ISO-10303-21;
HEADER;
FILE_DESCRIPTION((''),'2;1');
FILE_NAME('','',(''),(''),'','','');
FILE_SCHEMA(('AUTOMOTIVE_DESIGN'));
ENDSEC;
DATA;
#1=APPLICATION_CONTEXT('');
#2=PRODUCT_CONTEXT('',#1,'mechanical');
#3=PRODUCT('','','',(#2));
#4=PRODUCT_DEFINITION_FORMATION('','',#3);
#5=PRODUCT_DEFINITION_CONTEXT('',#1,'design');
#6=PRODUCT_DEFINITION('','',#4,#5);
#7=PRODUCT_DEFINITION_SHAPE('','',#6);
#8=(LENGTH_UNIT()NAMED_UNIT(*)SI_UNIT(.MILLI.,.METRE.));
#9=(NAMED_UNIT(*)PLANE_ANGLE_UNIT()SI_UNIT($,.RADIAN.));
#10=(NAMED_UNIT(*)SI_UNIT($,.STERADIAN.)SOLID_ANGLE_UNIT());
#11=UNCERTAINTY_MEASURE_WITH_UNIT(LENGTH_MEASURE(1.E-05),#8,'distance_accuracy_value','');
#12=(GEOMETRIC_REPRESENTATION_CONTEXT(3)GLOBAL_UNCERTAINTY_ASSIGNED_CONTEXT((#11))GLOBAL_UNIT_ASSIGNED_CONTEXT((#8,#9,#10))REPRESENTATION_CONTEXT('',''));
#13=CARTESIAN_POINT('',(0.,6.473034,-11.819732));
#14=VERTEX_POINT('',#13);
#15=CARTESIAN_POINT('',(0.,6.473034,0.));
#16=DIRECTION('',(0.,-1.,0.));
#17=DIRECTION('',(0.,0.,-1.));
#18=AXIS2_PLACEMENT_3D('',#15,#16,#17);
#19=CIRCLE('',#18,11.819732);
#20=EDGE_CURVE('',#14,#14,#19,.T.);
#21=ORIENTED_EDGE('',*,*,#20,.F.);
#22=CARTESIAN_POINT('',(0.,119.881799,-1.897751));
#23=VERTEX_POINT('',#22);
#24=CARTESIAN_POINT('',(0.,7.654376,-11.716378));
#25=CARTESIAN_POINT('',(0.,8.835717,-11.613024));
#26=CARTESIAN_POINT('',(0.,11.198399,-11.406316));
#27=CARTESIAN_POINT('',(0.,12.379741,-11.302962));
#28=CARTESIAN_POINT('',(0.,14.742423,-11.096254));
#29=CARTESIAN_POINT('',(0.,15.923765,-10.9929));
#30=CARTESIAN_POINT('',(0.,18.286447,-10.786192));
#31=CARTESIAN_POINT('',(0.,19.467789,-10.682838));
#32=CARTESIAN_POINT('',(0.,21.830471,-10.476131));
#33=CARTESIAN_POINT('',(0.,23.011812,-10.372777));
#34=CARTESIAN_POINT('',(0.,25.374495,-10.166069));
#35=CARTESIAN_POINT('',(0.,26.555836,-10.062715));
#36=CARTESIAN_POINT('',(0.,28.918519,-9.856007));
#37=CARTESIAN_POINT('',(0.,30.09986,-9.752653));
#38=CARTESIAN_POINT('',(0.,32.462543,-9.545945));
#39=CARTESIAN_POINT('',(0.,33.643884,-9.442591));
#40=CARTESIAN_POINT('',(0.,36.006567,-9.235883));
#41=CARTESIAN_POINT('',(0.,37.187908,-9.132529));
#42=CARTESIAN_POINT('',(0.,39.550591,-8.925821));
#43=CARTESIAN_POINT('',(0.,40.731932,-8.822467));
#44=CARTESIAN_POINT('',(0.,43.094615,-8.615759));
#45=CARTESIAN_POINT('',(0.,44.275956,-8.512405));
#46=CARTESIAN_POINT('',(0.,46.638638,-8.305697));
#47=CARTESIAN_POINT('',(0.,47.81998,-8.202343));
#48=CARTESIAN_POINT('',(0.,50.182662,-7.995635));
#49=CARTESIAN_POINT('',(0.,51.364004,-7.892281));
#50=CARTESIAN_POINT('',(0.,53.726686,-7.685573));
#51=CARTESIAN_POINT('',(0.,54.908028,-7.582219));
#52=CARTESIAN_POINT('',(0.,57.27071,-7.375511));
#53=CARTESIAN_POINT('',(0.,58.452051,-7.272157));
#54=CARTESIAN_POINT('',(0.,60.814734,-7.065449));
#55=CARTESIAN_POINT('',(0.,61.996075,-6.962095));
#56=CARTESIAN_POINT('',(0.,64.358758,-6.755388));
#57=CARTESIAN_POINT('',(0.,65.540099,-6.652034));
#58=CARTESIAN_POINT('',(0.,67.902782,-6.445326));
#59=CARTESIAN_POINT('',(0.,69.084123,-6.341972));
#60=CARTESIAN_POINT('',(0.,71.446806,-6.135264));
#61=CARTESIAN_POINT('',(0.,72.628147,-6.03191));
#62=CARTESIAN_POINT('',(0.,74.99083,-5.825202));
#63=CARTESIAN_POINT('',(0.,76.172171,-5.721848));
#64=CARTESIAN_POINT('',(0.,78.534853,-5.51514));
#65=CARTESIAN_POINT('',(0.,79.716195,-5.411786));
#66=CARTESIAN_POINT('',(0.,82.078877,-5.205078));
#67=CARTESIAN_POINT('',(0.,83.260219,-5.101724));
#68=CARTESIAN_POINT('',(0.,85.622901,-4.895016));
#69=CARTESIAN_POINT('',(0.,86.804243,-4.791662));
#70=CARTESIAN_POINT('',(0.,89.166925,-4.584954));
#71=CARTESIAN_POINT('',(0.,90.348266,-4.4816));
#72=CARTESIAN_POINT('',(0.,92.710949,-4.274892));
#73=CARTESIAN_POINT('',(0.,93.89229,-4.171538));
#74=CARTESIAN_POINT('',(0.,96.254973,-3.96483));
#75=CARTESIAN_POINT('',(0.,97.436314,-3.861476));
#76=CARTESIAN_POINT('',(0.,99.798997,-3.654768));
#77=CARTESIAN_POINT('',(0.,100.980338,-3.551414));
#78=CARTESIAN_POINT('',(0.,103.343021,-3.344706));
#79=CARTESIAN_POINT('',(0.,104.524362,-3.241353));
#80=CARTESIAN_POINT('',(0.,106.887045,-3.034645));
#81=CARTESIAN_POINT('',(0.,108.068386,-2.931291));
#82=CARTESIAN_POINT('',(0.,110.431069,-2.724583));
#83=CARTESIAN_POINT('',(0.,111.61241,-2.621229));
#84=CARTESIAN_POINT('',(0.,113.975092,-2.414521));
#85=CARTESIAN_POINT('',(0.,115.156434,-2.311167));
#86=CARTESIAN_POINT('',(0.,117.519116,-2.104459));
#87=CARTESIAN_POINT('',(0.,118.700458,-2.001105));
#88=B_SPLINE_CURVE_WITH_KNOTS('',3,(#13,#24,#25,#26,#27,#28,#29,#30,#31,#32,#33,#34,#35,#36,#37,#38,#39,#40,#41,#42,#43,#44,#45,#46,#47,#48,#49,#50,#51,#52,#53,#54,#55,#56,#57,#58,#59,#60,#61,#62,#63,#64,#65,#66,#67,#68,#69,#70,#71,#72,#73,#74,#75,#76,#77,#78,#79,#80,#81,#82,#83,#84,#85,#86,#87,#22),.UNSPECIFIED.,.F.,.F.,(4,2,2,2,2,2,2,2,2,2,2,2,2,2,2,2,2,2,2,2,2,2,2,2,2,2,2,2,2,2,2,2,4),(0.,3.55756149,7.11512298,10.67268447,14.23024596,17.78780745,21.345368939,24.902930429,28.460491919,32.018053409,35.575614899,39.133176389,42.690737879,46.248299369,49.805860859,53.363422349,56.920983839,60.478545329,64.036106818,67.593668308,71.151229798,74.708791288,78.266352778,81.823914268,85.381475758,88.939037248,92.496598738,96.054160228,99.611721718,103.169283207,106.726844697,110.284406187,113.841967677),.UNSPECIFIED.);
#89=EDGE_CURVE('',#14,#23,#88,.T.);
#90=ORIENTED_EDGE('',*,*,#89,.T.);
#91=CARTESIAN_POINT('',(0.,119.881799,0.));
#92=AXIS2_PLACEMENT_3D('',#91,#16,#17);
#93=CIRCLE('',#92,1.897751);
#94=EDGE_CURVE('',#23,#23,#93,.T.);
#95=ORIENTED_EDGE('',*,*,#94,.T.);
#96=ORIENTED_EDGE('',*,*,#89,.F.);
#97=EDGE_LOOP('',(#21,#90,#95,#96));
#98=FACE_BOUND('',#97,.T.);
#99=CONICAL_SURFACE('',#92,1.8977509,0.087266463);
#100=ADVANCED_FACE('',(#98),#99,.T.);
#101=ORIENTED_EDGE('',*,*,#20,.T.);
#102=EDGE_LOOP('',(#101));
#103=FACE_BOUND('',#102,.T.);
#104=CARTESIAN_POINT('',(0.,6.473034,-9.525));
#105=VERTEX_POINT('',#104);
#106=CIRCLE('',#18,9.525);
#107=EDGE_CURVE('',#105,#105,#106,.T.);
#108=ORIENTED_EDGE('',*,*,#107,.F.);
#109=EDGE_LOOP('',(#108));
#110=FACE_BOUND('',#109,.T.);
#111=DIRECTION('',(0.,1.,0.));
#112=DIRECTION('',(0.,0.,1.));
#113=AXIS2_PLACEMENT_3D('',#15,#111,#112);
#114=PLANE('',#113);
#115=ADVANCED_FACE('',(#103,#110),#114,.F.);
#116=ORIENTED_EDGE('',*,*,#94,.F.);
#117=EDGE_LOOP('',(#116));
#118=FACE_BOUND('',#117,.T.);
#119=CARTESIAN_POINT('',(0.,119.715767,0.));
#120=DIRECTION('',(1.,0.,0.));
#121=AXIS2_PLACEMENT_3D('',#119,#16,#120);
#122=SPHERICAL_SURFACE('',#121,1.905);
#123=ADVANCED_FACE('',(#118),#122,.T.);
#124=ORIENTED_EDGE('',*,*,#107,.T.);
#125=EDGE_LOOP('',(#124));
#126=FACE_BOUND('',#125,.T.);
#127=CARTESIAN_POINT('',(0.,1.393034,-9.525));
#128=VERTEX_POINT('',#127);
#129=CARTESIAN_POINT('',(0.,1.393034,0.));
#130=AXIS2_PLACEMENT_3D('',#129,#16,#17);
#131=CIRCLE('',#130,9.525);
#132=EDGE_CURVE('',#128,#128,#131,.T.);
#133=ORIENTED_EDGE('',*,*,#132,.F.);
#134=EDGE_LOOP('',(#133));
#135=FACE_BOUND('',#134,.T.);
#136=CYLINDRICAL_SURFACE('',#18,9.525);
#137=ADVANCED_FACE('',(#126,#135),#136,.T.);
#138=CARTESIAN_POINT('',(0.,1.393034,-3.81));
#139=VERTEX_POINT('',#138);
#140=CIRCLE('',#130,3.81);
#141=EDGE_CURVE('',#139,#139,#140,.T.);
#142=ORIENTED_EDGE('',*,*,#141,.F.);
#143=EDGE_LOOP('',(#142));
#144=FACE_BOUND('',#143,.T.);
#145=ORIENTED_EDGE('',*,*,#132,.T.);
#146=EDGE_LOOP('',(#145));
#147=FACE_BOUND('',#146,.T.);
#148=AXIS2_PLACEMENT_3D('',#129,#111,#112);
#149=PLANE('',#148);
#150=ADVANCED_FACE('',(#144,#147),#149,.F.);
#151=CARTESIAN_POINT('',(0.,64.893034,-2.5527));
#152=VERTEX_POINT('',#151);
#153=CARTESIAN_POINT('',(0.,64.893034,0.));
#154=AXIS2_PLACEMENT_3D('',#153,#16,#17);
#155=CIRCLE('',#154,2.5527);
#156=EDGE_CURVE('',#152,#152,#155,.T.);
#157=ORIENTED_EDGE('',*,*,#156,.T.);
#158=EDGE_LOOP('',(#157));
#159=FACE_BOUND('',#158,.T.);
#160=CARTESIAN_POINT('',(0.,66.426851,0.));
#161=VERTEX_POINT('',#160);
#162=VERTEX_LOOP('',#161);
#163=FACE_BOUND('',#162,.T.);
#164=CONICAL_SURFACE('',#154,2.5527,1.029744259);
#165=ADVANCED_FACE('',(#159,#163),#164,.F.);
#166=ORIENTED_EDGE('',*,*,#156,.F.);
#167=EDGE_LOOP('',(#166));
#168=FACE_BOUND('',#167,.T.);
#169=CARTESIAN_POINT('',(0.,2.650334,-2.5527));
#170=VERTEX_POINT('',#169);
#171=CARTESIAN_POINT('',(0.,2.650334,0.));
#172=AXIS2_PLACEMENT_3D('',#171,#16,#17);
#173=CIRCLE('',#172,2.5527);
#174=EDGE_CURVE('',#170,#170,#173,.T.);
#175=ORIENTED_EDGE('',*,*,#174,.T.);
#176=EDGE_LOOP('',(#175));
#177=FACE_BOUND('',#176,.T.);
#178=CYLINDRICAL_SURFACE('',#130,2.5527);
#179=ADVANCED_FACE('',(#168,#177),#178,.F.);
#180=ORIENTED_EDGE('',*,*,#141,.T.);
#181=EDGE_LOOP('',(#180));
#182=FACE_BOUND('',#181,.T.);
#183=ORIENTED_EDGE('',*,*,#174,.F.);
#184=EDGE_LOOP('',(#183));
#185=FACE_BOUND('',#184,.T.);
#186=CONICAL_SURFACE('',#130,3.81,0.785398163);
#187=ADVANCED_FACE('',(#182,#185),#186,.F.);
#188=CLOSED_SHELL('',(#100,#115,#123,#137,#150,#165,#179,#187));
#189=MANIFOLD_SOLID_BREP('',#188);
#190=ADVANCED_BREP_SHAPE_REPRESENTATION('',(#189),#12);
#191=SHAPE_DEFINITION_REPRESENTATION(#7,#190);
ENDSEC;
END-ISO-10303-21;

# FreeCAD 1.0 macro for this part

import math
import FreeCAD as App
import Part
import Sketcher
Q = App.Units.Quantity

doc = App.newDocument("Part")
body = doc.addObject("PartDesign::Body", "Body")

sketch1 = body.newObject("Sketcher::SketchObject", "Sketch")
sketch1.AttachmentSupport = (doc.getObject("XY_Plane"), [""])
sketch1.MapMode = "FlatFace"
sketch1.addGeometry([
    Part.LineSegment(App.Vector(0, 121.6, 0), App.Vector(0, 1.4, 0)),
    Part.LineSegment(App.Vector(0, 1.4, 0), App.Vector(9.5, 1.4, 0)),
    Part.LineSegment(App.Vector(9.5, 1.4, 0), App.Vector(9.5, 6.5, 0)),
    Part.LineSegment(App.Vector(9.5, 6.5, 0), App.Vector(11.8, 6.5, 0)),
    Part.LineSegment(App.Vector(11.8, 6.5, 0), App.Vector(1.9, 119.9, 0)),
    Part.ArcOfCircle(Part.Circle(App.Vector(0, 119.7, 0), App.Vector(0, 0, 1), 1.9), math.radians(5), math.radians(90)),
], False)
sketch1.addConstraint([
    Sketcher.Constraint("Coincident", 0, 2, 1, 1),
    Sketcher.Constraint("Coincident", 1, 2, 2, 1),
    Sketcher.Constraint("Coincident", 2, 2, 3, 1),
    Sketcher.Constraint("Coincident", 3, 2, 4, 1),
    Sketcher.Constraint("Tangent", 4, 2, 5, 1),
    Sketcher.Constraint("Coincident", 5, 2, 0, 1),
    Sketcher.Constraint("Vertical", 0),
    Sketcher.Constraint("Horizontal", 1),
    Sketcher.Constraint("Vertical", 2),
    Sketcher.Constraint("Horizontal", 3),
    Sketcher.Constraint("PointOnObject", 5, 3, -2),
    Sketcher.Constraint("PointOnObject", 0, 2, -2),
    Sketcher.Constraint("DistanceY", 2, 1, 2, 2, Q("0.2 in")),
    Sketcher.Constraint("Angle", 4, Q("95 deg")),
    Sketcher.Constraint("Radius", 5, Q("0.075 in")),
    Sketcher.Constraint("DistanceX", 1, 1, 1, 2, Q("0.375 in")),
    Sketcher.Constraint("DistanceY", -1, 1, 4, 2, 119.881799),
    Sketcher.Constraint("DistanceX", 3, 1, 3, 2, 2.294732),
])
revolution = body.newObject("PartDesign::Revolution", "Revolution")
revolution.Profile = sketch1
revolution.ReferenceAxis = (sketch1, ["V_Axis"])
revolution.Angle = 360

sketch2 = body.newObject("Sketcher::SketchObject", "Sketch001")
sketch2.AttachmentSupport = (doc.getObject("XZ_Plane"), [""])
sketch2.MapMode = "FlatFace"
sketch2.AttachmentOffset = App.Placement(App.Vector(0, 0, -1.393034), App.Rotation())
sketch2.addGeometry(Part.Circle(App.Vector(0, 0, 0), App.Vector(0, 0, 1), 2.6), False)
sketch2.addConstraint([
    Sketcher.Constraint("Coincident", 0, 3, -1, 1),
    Sketcher.Constraint("Diameter", 0, Q("0.201 in")),
])
doc.recompute()
hole = body.newObject("PartDesign::Hole", "Hole")
hole.Profile = sketch2
hole.ThreadType = "None"
hole.Diameter = Q("0.201 in")
hole.DepthType = "Dimension"
hole.Depth = Q("2.5 in")
hole.DrillPoint = "Angled"
hole.DrillPointAngle = 118
hole.HoleCutType = "Countersink"
hole.HoleCutDiameter = Q("0.3 in")
hole.HoleCutCountersinkAngle = 90

doc.recompute()
